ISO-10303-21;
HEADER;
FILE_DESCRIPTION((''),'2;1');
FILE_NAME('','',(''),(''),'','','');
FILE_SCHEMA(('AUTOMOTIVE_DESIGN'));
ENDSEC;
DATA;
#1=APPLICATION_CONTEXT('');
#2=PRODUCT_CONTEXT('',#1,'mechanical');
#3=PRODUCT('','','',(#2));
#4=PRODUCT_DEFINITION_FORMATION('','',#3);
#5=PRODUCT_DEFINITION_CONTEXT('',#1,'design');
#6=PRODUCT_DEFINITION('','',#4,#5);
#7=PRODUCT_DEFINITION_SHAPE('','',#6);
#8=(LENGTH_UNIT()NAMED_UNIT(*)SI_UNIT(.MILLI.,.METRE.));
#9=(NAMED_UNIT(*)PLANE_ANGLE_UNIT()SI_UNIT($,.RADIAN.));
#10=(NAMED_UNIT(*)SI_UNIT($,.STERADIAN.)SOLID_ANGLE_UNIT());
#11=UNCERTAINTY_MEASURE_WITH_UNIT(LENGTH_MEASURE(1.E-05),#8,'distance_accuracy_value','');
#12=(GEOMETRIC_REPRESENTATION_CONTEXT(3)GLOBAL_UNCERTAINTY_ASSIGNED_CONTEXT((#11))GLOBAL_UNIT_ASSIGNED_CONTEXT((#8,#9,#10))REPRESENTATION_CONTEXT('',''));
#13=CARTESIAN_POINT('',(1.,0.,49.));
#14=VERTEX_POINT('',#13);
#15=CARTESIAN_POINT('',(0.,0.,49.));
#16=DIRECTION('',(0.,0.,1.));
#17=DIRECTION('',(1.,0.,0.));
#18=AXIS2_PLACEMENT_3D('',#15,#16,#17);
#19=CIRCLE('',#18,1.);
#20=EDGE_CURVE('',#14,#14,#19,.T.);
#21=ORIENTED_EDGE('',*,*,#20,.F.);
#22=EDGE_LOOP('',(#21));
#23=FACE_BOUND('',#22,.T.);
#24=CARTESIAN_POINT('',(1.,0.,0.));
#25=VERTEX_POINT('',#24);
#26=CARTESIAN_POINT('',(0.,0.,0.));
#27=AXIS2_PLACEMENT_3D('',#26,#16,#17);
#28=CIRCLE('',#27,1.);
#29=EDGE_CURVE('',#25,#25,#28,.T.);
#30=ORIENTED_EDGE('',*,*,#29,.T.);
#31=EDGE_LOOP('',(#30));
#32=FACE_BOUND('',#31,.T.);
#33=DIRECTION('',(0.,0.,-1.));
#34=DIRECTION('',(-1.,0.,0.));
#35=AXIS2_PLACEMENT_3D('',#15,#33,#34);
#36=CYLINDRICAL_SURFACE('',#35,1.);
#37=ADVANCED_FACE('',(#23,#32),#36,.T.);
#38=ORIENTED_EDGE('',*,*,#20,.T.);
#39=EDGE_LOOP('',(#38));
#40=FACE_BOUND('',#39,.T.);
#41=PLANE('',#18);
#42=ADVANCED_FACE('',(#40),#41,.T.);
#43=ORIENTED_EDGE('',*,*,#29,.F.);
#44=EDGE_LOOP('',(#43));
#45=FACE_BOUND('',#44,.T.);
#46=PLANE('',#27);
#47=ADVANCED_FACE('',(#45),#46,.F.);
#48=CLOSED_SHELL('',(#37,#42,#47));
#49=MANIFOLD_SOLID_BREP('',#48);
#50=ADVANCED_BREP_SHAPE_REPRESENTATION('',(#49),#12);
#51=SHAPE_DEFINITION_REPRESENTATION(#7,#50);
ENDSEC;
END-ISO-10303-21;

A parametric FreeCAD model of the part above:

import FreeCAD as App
import Part
import Sketcher
from FreeCAD import Vector

doc = App.newDocument("Part")
body = doc.addObject("PartDesign::Body", "Body")

# Sketch on XY plane
sketch1 = body.newObject("Sketcher::SketchObject", "Sketch")
sketch1.AttachmentSupport = (doc.getObject("XY_Plane"), [""])
sketch1.MapMode = "FlatFace"
sketch1.addGeometry(Part.Circle(Vector(0, 0, 0), Vector(0, 0, 1), 1), False)
sketch1.addConstraint(Sketcher.Constraint("Coincident", 0, 3, -1, 1))
sketch1.addConstraint(Sketcher.Constraint("Diameter", 0, 2.0))
pad1 = body.newObject("PartDesign::Pad", "Pad")
pad1.Profile = sketch1
pad1.Length = 49

doc.recompute()
